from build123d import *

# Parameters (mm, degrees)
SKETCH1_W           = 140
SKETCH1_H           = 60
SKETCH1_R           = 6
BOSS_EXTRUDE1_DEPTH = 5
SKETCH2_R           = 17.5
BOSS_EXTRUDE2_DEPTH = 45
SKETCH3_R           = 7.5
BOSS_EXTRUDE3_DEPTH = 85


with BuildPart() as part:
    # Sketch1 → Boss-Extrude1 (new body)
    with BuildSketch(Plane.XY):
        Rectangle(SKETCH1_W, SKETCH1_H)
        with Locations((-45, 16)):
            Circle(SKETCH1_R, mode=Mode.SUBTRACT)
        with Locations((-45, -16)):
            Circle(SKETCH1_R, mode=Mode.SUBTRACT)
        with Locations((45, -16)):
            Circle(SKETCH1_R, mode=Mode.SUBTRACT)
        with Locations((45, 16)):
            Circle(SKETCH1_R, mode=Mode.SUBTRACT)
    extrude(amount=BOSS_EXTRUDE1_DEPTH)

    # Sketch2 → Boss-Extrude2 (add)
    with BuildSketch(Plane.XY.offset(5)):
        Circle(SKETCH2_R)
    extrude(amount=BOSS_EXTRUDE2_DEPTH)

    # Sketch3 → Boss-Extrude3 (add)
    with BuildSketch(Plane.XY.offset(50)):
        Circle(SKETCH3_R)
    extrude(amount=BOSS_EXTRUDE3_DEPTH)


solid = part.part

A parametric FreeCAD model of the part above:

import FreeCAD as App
import Part
import Sketcher
from FreeCAD import Vector
Q = App.Units.Quantity

doc = App.newDocument("Part")
body = doc.addObject("PartDesign::Body", "Body")

# Sketch on XY plane
sketch1 = doc.addObject("Sketcher::SketchObject", "Sketch")
body.addObject(sketch1)
sketch1.AttachmentSupport = (doc.XY_Plane, [""])
sketch1.MapMode = "FlatFace"
sketch1.addGeometry([
    Part.LineSegment(Vector(-70, 30, 0), Vector(-70, -30, 0)),  # 0
    Part.LineSegment(Vector(-70, -30, 0), Vector(70, -30, 0)),  # 1
    Part.LineSegment(Vector(70, -30, 0), Vector(70, 30, 0)),  # 2
    Part.LineSegment(Vector(70, 30, 0), Vector(-70, 30, 0)),  # 3
    Part.Circle(Vector(-45, -16, 0), Vector(0, 0, 1), 6),  # 4
    Part.Circle(Vector(45, -16, 0), Vector(0, 0, 1), 6),  # 5
    Part.Circle(Vector(-45, 16, 0), Vector(0, 0, 1), 6),  # 6
    Part.Circle(Vector(45, 16, 0), Vector(0, 0, 1), 6),  # 7
], False)
sketch1.addConstraint([
    Sketcher.Constraint("Coincident", 0, 2, 1, 1),
    Sketcher.Constraint("Coincident", 1, 2, 2, 1),
    Sketcher.Constraint("Coincident", 2, 2, 3, 1),
    Sketcher.Constraint("Coincident", 3, 2, 0, 1),
    Sketcher.Constraint("Vertical", 0),
    Sketcher.Constraint("Horizontal", 1),
    Sketcher.Constraint("Vertical", 2),
    Sketcher.Constraint("Horizontal", 3),
    Sketcher.Constraint("Equal", 4, 5),
    Sketcher.Constraint("Equal", 5, 6),
    Sketcher.Constraint("Equal", 6, 7),
    Sketcher.Constraint("Symmetric", 5, 3, 6, 3, -1, 1),
    Sketcher.Constraint("Symmetric", 4, 3, 7, 3, -1, 1),
    Sketcher.Constraint("Symmetric", 0, 2, 2, 2, -1, 1),
    Sketcher.Constraint("Symmetric", 4, 3, 5, 3, -2),
    Sketcher.Constraint("Diameter", 4, Q("12 mm")),
    Sketcher.Constraint("DistanceX", 1, 1, 1, 2, Q("140 mm")),
    Sketcher.Constraint("DistanceY", 0, 2, 0, 1, Q("60 mm")),
    Sketcher.Constraint("DistanceX", 4, 3, -1, 1, Q("45 mm")),
    Sketcher.Constraint("DistanceY", 4, 3, -1, 1, Q("16 mm")),
])
pad1 = doc.addObject("PartDesign::Pad", "Pad")
body.addObject(pad1)
pad1.Profile = sketch1
pad1.Length = 5

# Sketch on XY plane
sketch2 = doc.addObject("Sketcher::SketchObject", "Sketch001")
body.addObject(sketch2)
sketch2.AttachmentSupport = (doc.XY_Plane, [""])
sketch2.MapMode = "FlatFace"
sketch2.AttachmentOffset = App.Placement(Vector(0, 0, 5), App.Rotation())
sketch2.addGeometry(Part.Circle(Vector(0, 0, 0), Vector(0, 0, 1), 18), False)
sketch2.addConstraint([
    Sketcher.Constraint("Coincident", 0, 3, -1, 1),
    Sketcher.Constraint("Diameter", 0, Q("35 mm")),
])
pad2 = doc.addObject("PartDesign::Pad", "Pad001")
body.addObject(pad2)
pad2.Profile = sketch2
pad2.Length = 45

# Sketch on XY plane
sketch3 = doc.addObject("Sketcher::SketchObject", "Sketch002")
body.addObject(sketch3)
sketch3.AttachmentSupport = (doc.XY_Plane, [""])
sketch3.MapMode = "FlatFace"
sketch3.AttachmentOffset = App.Placement(Vector(0, 0, 50), App.Rotation())
sketch3.addGeometry(Part.Circle(Vector(0, 0, 0), Vector(0, 0, 1), 8), False)
sketch3.addConstraint([
    Sketcher.Constraint("Coincident", 0, 3, -1, 1),
    Sketcher.Constraint("Diameter", 0, Q("15 mm")),
])
pad3 = doc.addObject("PartDesign::Pad", "Pad002")
body.addObject(pad3)
pad3.Profile = sketch3
pad3.Length = 85

doc.recompute()
